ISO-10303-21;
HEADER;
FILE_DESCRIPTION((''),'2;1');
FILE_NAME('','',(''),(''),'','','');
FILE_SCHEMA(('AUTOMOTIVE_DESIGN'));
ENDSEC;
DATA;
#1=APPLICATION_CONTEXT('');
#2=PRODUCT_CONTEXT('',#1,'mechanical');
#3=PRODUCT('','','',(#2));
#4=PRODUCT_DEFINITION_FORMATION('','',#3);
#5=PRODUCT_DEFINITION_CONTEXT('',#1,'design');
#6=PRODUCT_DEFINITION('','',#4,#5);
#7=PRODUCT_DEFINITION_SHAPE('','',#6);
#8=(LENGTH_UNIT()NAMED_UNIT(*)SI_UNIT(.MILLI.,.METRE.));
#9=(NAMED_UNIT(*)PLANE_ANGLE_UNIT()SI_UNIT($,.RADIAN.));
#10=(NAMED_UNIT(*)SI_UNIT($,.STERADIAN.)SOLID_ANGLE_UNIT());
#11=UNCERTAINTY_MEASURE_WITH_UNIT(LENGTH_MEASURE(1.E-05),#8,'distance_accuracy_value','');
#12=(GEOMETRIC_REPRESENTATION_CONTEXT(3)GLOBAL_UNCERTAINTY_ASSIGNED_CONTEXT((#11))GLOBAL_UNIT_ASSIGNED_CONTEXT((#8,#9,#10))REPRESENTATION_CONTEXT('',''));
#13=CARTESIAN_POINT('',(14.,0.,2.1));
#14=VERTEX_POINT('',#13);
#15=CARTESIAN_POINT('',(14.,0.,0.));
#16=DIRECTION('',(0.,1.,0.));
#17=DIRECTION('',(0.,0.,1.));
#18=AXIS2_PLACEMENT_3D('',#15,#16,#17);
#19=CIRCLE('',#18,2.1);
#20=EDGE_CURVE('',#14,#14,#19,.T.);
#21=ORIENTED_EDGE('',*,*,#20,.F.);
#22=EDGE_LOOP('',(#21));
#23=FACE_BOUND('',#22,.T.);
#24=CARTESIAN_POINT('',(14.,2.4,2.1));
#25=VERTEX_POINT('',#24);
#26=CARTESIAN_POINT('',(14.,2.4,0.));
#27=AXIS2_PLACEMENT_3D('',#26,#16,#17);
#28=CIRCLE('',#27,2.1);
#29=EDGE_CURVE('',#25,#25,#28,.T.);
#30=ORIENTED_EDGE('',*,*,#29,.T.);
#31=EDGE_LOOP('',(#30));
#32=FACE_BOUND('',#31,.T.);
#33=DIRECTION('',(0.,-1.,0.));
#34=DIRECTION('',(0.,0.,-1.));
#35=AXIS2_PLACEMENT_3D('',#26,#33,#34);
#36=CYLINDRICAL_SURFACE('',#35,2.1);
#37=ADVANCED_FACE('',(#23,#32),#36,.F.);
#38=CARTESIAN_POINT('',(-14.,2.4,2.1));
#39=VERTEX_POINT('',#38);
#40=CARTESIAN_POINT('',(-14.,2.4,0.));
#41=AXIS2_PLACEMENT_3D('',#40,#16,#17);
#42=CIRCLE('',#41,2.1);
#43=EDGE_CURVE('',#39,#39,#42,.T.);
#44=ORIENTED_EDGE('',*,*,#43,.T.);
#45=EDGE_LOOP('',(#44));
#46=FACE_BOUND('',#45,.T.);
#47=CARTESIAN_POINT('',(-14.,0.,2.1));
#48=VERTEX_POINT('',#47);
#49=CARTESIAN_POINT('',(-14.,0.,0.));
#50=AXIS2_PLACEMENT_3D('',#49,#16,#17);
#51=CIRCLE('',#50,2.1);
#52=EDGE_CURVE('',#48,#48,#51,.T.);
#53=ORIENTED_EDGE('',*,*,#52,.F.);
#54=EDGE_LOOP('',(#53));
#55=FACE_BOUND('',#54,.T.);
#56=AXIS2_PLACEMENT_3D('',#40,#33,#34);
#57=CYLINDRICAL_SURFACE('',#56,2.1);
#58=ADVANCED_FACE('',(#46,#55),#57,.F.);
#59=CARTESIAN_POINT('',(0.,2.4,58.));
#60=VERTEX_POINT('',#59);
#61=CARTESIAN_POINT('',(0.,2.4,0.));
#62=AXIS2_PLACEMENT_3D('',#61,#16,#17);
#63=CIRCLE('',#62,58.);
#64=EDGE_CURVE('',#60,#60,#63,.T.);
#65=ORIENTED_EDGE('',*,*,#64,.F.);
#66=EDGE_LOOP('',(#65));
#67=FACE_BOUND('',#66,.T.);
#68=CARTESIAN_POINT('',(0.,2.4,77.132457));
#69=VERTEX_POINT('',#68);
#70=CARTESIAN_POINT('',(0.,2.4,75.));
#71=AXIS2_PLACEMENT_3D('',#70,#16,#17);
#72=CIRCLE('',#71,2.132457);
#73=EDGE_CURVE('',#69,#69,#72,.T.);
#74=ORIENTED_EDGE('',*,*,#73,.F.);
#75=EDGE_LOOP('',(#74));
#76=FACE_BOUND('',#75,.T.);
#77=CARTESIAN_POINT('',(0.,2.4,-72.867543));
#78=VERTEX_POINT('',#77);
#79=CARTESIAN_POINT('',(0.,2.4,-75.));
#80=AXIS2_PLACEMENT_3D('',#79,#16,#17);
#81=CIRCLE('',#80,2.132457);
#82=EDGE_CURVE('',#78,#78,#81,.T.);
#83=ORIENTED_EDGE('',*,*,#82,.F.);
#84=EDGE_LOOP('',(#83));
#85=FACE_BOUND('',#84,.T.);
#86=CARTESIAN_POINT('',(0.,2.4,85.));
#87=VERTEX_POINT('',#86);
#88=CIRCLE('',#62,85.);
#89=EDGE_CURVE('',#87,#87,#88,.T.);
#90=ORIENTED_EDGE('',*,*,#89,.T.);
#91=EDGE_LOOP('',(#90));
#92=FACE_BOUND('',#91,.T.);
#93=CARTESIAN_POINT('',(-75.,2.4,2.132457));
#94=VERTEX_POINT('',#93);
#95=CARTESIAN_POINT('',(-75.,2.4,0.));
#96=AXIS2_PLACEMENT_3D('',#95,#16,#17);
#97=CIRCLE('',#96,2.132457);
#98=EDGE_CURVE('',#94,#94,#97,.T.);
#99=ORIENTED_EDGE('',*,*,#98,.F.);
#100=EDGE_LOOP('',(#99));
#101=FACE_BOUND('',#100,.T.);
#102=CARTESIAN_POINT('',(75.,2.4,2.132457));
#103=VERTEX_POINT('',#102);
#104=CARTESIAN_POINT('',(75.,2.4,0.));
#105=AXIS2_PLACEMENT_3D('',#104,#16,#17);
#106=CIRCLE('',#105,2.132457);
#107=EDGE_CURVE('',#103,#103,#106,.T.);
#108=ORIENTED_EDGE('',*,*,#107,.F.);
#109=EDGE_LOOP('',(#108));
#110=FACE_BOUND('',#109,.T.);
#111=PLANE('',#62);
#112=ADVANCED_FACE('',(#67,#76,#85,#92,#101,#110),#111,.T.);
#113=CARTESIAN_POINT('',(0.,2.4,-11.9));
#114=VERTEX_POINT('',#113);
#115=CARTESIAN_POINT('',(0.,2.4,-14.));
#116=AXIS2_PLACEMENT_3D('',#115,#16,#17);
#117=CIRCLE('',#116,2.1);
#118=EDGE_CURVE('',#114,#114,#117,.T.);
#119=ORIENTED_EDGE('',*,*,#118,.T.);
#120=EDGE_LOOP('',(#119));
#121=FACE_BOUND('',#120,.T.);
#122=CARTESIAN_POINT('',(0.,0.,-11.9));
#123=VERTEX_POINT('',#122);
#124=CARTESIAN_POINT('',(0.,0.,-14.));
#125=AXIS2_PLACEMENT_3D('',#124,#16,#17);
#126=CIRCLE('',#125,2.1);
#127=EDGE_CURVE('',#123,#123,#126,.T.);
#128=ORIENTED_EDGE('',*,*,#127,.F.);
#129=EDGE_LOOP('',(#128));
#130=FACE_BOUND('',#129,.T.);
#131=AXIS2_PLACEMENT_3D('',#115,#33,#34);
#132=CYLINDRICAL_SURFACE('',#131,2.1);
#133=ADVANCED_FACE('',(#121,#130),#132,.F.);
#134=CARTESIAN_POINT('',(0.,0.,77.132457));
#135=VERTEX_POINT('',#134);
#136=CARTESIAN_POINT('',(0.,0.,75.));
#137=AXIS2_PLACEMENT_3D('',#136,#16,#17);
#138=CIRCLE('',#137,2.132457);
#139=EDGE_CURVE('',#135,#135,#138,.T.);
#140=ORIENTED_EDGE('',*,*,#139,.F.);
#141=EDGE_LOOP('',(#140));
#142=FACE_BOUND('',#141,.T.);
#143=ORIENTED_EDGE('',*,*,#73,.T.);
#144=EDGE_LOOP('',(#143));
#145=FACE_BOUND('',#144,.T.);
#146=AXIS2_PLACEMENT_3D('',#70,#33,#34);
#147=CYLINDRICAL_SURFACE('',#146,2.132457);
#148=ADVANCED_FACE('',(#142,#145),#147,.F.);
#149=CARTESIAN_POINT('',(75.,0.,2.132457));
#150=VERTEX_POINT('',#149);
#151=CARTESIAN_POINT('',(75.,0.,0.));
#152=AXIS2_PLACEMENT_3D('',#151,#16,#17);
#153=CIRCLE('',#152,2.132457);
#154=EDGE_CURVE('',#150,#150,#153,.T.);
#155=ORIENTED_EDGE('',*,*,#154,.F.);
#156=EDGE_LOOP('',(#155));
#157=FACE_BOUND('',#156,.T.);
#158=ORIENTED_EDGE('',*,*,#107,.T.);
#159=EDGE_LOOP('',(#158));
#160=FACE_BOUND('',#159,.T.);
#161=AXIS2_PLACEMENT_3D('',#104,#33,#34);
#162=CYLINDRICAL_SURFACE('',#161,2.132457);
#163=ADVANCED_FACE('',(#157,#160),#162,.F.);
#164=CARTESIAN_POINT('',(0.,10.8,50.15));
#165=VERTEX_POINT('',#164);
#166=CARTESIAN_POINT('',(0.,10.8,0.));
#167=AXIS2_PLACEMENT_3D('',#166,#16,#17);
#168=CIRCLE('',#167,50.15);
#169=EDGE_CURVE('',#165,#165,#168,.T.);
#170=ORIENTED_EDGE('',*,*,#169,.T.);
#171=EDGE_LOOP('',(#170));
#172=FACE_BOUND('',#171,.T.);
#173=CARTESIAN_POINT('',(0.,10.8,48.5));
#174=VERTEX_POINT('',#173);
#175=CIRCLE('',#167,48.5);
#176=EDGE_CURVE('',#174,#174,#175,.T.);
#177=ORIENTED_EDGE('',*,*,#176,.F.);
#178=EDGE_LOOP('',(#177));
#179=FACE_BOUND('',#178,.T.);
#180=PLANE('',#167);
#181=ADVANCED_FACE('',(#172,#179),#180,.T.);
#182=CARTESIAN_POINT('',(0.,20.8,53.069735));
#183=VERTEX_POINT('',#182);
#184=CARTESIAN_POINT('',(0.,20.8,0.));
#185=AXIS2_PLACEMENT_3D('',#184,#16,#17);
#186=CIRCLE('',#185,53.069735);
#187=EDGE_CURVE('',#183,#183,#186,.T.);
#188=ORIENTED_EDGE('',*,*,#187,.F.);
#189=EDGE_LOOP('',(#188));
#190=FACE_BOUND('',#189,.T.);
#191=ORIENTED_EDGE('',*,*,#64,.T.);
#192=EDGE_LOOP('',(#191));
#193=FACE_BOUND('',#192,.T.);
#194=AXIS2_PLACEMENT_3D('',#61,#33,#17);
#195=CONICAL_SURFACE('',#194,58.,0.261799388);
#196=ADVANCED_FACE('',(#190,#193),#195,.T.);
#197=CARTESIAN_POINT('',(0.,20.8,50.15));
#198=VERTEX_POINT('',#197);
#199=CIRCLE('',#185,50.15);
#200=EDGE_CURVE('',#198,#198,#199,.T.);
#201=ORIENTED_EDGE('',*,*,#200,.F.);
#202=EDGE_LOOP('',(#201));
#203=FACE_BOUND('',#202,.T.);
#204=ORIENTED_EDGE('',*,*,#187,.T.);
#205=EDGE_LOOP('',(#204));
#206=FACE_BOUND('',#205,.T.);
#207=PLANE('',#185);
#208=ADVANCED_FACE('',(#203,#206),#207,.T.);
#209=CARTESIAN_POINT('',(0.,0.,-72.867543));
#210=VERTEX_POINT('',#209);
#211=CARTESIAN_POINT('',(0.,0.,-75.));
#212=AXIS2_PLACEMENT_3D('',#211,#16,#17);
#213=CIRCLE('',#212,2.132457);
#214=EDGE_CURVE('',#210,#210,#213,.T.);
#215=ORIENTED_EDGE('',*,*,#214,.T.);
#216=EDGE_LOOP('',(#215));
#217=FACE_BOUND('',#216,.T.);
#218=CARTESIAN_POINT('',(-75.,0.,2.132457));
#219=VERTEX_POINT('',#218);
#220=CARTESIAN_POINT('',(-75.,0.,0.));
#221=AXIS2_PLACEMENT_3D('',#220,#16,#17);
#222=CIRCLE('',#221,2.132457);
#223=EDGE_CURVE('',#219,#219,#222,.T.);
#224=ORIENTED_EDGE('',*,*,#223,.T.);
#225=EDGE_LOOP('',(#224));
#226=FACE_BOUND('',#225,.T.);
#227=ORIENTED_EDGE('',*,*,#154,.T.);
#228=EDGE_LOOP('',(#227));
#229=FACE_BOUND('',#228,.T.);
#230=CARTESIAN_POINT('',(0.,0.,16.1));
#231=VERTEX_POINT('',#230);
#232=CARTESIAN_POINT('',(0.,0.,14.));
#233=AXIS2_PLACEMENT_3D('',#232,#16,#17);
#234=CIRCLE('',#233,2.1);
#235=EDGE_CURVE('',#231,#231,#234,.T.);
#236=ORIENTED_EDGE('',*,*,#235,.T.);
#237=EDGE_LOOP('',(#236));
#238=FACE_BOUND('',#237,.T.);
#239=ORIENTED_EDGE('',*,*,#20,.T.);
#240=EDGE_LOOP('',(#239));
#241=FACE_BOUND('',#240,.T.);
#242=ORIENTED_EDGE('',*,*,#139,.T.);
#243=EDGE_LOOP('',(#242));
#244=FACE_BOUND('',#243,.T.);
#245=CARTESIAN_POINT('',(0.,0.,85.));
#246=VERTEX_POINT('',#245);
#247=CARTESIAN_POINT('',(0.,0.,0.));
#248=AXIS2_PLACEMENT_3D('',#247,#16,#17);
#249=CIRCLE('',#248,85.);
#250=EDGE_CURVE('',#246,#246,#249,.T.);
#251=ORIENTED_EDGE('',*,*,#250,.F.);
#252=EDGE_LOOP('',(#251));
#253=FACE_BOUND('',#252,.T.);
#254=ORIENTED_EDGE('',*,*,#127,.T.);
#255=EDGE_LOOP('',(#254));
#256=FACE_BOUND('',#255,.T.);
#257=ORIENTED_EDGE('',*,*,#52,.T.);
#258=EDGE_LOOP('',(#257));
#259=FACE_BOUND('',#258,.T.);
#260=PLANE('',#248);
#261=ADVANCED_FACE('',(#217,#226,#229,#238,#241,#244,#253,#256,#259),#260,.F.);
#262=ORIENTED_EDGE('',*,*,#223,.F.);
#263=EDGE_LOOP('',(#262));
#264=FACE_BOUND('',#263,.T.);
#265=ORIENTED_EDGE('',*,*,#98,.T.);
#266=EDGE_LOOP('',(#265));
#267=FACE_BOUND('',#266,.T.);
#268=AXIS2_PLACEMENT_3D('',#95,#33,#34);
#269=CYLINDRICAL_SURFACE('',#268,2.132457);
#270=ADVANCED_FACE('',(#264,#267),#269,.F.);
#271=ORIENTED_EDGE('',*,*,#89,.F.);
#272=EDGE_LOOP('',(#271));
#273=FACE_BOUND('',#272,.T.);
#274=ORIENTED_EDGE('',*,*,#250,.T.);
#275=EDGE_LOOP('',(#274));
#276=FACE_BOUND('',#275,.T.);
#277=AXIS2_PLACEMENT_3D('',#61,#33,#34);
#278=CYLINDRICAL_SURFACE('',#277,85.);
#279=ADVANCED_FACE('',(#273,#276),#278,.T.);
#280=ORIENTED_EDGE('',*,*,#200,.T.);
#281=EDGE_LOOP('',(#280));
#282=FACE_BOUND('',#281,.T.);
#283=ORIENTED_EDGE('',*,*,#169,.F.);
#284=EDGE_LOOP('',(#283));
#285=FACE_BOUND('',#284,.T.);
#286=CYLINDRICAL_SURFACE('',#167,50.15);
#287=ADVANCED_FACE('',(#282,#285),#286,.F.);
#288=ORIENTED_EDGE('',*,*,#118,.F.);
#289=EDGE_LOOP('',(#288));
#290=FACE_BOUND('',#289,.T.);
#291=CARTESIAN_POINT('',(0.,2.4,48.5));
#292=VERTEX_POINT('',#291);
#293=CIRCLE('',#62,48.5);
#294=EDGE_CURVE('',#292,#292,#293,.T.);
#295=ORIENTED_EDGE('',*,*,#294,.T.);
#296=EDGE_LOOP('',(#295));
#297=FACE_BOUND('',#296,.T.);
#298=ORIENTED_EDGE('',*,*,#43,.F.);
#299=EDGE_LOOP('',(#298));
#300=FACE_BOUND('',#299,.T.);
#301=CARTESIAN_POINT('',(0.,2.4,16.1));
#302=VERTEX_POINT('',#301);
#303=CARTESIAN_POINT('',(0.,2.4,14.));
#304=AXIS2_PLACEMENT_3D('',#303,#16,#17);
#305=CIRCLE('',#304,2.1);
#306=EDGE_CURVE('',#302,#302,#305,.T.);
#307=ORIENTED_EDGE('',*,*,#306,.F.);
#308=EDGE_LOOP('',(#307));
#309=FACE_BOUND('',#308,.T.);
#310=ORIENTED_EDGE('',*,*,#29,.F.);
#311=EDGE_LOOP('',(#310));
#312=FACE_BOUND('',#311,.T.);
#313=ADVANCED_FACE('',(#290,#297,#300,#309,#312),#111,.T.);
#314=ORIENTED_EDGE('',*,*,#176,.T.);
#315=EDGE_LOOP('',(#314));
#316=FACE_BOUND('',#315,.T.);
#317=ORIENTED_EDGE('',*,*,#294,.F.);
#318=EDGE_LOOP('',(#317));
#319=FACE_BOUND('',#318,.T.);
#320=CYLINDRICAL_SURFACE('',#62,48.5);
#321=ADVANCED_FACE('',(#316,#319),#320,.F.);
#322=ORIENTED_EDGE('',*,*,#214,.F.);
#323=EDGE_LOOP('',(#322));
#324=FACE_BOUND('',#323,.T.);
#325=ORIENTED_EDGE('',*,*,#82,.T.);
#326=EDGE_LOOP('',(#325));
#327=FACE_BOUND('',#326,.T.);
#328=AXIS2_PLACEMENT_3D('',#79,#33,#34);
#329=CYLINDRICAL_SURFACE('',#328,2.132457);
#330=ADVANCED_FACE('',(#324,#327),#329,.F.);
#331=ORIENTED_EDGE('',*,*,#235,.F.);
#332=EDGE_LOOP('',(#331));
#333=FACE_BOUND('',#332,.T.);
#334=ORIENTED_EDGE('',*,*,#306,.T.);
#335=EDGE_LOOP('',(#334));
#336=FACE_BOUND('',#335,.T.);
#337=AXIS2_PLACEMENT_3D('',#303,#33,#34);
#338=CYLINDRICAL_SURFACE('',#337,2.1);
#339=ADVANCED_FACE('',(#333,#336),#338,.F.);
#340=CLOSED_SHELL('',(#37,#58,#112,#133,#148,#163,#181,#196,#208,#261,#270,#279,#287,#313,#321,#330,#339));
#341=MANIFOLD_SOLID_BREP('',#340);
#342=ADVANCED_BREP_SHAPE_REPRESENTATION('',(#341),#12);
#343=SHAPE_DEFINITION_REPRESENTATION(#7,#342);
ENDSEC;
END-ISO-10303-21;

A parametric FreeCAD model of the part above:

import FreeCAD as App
import Part
import Sketcher

V = App.Vector

doc = App.newDocument("Part")
params = doc.addObject("Spreadsheet::Sheet", "Params")
for row, (alias, value) in enumerate([
    ("sketch1_diameter", "170 mm"),
    ("sketch1_diameter2", "4.2 mm"),
    ("pad1_length", "2.4 mm"),
    ("sketch2_diameter", "116 mm"),
    ("pad2_length", "18.4 mm"),
    ("pad2_taper", "-15 deg"),
    ("sketch3_diameter", "100.3 mm"),
    ("pocket1_length", "10 mm"),
    ("sketch4_diameter", "97 mm"),
    ("pocket2_length", "8.4 mm"),
], start=1):
    params.set(f"A{row}", alias)
    params.set(f"B{row}", "=" + value)
    params.setAlias(f"B{row}", alias)

body = doc.addObject("PartDesign::Body", "Body")

# Sketch on XZ plane
sketch1 = body.newObject("Sketcher::SketchObject", "Sketch")
sketch1.AttachmentSupport = (doc.getObject("XZ_Plane"), [""])
sketch1.MapMode = "FlatFace"
sketch1.addGeometry([
    Part.Circle(V(0, 0, 0), V(0, 0, 1), 85),  # 0
    Part.Circle(V(0, -75, 0), V(0, 0, 1), 2.132457),  # 1
    Part.Circle(V(-75, 0, 0), V(0, 0, 1), 2.132457),  # 2
    Part.Circle(V(-14, 0, 0), V(0, 0, 1), 2.1),  # 3
    Part.Circle(V(0, -14, 0), V(0, 0, 1), 2.1),  # 4
    Part.Circle(V(75, 0, 0), V(0, 0, 1), 2.132457),  # 5
    Part.Circle(V(0, 14, 0), V(0, 0, 1), 2.1),  # 6
    Part.Circle(V(14, 0, 0), V(0, 0, 1), 2.1),  # 7
    Part.Circle(V(0, 75, 0), V(0, 0, 1), 2.132457),  # 8
], False)
sketch1.addConstraint([
    Sketcher.Constraint("Coincident", 0, 3, -1, 1),
    Sketcher.Constraint("Equal", 1, 2),
    Sketcher.Constraint("Equal", 3, 4),
    Sketcher.Constraint("Equal", 2, 5),
    Sketcher.Constraint("Equal", 4, 6),
    Sketcher.Constraint("Equal", 6, 7),
    Sketcher.Constraint("Equal", 5, 8),
    Sketcher.Constraint("Symmetric", 2, 3, 5, 3, -1, 1),
    Sketcher.Constraint("Symmetric", 4, 3, 6, 3, -1, 1),
    Sketcher.Constraint("Symmetric", 3, 3, 7, 3, -1, 1),
    Sketcher.Constraint("Symmetric", 1, 3, 8, 3, -1, 1),
    Sketcher.Constraint("PointOnObject", 1, 3, -2),
    Sketcher.Constraint("PointOnObject", 2, 3, -1),
    Sketcher.Constraint("PointOnObject", 3, 3, -1),
    Sketcher.Constraint("PointOnObject", 4, 3, -2),
    Sketcher.Constraint("Diameter", 0, 170.0),
    Sketcher.Constraint("Diameter", 3, 4.2),
    Sketcher.Constraint("DistanceY", 1, 3, -1, 1, 75.0),
    Sketcher.Constraint("DistanceX", 2, 3, -1, 1, 75.0),
    Sketcher.Constraint("DistanceX", 3, 3, -1, 1, 14.0),
    Sketcher.Constraint("DistanceY", 4, 3, -1, 1, 14.0),
    Sketcher.Constraint("Diameter", 1, 4.264914),
])
sketch1.setExpression("Constraints[15]", "Params.sketch1_diameter")
sketch1.setExpression("Constraints[16]", "Params.sketch1_diameter2")
pad1 = body.newObject("PartDesign::Pad", "Pad")
pad1.Profile = sketch1
pad1.setExpression("Length", "Params.pad1_length")
pad1.Reversed = True

# Sketch on XZ plane
sketch2 = body.newObject("Sketcher::SketchObject", "Sketch001")
sketch2.AttachmentSupport = (doc.getObject("XZ_Plane"), [""])
sketch2.MapMode = "FlatFace"
sketch2.AttachmentOffset = App.Placement(V(0, 0, -2.4), App.Rotation())
sketch2.addGeometry(Part.Circle(V(0, 0, 0), V(0, 0, 1), 58), False)
sketch2.addConstraint([
    Sketcher.Constraint("Coincident", 0, 3, -1, 1),
    Sketcher.Constraint("Diameter", 0, 116.0),
])
sketch2.setExpression("Constraints[1]", "Params.sketch2_diameter")
pad2 = body.newObject("PartDesign::Pad", "Pad001")
pad2.Profile = sketch2
pad2.setExpression("Length", "Params.pad2_length")
pad2.Reversed = True
pad2.setExpression("TaperAngle", "Params.pad2_taper")

# Sketch on XZ plane
sketch3 = body.newObject("Sketcher::SketchObject", "Sketch002")
sketch3.AttachmentSupport = (doc.getObject("XZ_Plane"), [""])
sketch3.MapMode = "FlatFace"
sketch3.AttachmentOffset = App.Placement(V(0, 0, -20.8), App.Rotation())
sketch3.addGeometry(Part.Circle(V(0, 0, 0), V(0, 0, 1), 50.15), False)
sketch3.addConstraint([
    Sketcher.Constraint("Coincident", 0, 3, -1, 1),
    Sketcher.Constraint("Diameter", 0, 100.3),
])
sketch3.setExpression("Constraints[1]", "Params.sketch3_diameter")
pocket1 = body.newObject("PartDesign::Pocket", "Pocket")
pocket1.Profile = sketch3
pocket1.setExpression("Length", "Params.pocket1_length")
pocket1.Reversed = True

# Sketch on XZ plane
sketch4 = body.newObject("Sketcher::SketchObject", "Sketch003")
sketch4.AttachmentSupport = (doc.getObject("XZ_Plane"), [""])
sketch4.MapMode = "FlatFace"
sketch4.AttachmentOffset = App.Placement(V(0, 0, -10.8), App.Rotation())
sketch4.addGeometry(Part.Circle(V(0, 0, 0), V(0, 0, 1), 48.5), False)
sketch4.addConstraint([
    Sketcher.Constraint("Coincident", 0, 3, -1, 1),
    Sketcher.Constraint("Diameter", 0, 97.0),
])
sketch4.setExpression("Constraints[1]", "Params.sketch4_diameter")
pocket2 = body.newObject("PartDesign::Pocket", "Pocket001")
pocket2.Profile = sketch4
pocket2.setExpression("Length", "Params.pocket2_length")
pocket2.Reversed = True

doc.recompute()
